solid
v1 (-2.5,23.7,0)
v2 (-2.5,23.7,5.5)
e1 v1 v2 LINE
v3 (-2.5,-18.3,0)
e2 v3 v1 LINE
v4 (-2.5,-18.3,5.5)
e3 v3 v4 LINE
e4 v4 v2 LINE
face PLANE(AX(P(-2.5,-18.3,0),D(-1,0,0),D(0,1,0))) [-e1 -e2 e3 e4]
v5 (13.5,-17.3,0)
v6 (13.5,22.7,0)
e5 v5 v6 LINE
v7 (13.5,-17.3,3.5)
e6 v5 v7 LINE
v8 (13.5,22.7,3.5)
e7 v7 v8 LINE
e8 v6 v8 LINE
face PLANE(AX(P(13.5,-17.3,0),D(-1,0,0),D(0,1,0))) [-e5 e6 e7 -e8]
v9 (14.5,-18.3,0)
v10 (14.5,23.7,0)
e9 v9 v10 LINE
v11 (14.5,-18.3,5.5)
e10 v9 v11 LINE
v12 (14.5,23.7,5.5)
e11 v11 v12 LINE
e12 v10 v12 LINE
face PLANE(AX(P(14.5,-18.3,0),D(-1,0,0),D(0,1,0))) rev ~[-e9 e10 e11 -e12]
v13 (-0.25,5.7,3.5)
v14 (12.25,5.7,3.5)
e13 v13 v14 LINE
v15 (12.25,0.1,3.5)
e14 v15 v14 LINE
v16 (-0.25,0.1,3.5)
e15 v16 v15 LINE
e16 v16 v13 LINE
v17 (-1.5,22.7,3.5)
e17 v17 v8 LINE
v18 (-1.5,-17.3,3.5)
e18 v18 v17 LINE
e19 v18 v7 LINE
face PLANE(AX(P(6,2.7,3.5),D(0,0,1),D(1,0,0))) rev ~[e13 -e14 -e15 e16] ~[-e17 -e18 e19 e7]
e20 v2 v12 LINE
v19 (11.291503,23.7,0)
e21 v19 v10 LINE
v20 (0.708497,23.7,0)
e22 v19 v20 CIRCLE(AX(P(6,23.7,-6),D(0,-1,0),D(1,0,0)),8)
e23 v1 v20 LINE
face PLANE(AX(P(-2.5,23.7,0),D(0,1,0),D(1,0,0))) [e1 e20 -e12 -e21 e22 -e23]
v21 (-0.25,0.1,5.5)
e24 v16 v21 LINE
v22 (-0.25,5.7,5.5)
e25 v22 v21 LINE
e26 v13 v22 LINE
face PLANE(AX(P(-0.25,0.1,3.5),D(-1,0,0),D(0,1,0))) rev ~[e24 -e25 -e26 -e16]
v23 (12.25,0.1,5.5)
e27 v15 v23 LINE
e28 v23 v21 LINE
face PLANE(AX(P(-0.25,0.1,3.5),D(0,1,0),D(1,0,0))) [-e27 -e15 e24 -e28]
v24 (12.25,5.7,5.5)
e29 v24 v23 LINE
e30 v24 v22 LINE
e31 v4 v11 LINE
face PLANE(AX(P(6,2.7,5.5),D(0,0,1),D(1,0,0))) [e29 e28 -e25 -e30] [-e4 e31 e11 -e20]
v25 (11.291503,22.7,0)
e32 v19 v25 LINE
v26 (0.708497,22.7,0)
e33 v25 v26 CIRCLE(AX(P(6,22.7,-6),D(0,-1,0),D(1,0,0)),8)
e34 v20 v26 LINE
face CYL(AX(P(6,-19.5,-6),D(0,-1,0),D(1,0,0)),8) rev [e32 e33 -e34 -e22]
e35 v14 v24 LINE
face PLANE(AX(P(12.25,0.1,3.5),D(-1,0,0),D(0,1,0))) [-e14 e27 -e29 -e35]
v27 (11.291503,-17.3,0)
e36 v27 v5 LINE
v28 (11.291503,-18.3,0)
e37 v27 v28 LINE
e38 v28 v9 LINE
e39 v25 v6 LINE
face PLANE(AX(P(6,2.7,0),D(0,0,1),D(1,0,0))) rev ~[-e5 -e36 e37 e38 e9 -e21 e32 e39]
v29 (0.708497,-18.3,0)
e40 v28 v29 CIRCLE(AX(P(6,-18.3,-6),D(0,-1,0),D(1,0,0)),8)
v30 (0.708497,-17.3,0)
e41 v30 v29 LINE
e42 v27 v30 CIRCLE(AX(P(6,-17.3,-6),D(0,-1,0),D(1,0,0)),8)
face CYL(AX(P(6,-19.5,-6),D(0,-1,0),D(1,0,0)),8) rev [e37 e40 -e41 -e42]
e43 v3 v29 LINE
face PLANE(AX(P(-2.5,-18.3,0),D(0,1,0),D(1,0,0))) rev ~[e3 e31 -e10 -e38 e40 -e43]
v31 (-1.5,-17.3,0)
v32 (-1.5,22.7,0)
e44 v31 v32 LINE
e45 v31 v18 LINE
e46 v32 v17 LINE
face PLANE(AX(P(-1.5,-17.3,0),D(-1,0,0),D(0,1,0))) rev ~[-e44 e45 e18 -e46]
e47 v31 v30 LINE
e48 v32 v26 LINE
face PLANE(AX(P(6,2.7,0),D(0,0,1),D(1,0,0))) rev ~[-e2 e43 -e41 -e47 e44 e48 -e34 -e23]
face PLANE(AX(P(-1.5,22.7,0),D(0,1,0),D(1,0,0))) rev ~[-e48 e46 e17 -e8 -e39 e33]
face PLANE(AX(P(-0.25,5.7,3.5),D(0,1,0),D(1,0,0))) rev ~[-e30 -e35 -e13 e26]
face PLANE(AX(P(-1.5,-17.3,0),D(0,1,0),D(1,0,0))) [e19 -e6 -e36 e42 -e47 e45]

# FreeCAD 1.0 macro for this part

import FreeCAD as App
import Part
import Sketcher

doc = App.newDocument("Part")
params = doc.addObject("Spreadsheet::Sheet", "Params")
for row, (alias, value) in enumerate([
    ("sketch1_diameter", "16 mm"),
    ("pad1_length", "45 mm"),
    ("sketch2_width", "15 mm"),
    ("sketch2_height", "40 mm"),
    ("pad2_length", "5.5 mm"),
    ("sketch3_width", "17 mm"),
    ("sketch3_height", "42 mm"),
    ("pad3_length", "5.5 mm"),
    ("sketch4_width", "12.5 mm"),
    ("sketch4_height", "5.6 mm"),
    ("pad4_length", "10 mm"),
    ("sketch5_width", "15 mm"),
    ("sketch5_height", "40 mm"),
    ("pad5_length", "2 mm"),
], start=1):
    params.set(f"A{row}", alias)
    params.set(f"B{row}", "=" + value)
    params.setAlias(f"B{row}", alias)

body = doc.addObject("PartDesign::Body", "Body")

sketch1 = doc.addObject("Sketcher::SketchObject", "Sketch")
body.addObject(sketch1)
sketch1.AttachmentSupport = (doc.XZ_Plane, [""])
sketch1.MapMode = "FlatFace"
sketch1.AttachmentOffset = App.Placement(App.Vector(0, 0, 19.5), App.Rotation())
sketch1.addGeometry(Part.Circle(App.Vector(6, -6, 0), App.Vector(0, 0, 1), 8), False)
sketch1.addConstraint([
    Sketcher.Constraint("Diameter", 0, 16.0),
    Sketcher.Constraint("DistanceX", -1, 1, 0, 3, 6.0),
    Sketcher.Constraint("DistanceY", 0, 3, -1, 1, 6.0),
])
sketch1.setExpression("Constraints[0]", "Params.sketch1_diameter")
pad1 = doc.addObject("PartDesign::Pad", "Pad")
body.addObject(pad1)
pad1.Profile = sketch1
pad1.setExpression("Length", "Params.pad1_length")
pad1.Reversed = True
body2 = doc.addObject("PartDesign::Body", "Body001")

sketch2 = doc.addObject("Sketcher::SketchObject", "Sketch001")
body2.addObject(sketch2)
sketch2.AttachmentSupport = (doc.getObject("XY_Plane001"), [""])
sketch2.MapMode = "FlatFace"
sketch2.addGeometry([
    Part.LineSegment(App.Vector(-1.5, 22.7, 0), App.Vector(-1.5, -17.3, 0)),
    Part.LineSegment(App.Vector(-1.5, -17.3, 0), App.Vector(13.5, -17.3, 0)),
    Part.LineSegment(App.Vector(13.5, -17.3, 0), App.Vector(13.5, 22.7, 0)),
    Part.LineSegment(App.Vector(13.5, 22.7, 0), App.Vector(-1.5, 22.7, 0)),
], False)
sketch2.addConstraint([
    Sketcher.Constraint("Coincident", 0, 2, 1, 1),
    Sketcher.Constraint("Coincident", 1, 2, 2, 1),
    Sketcher.Constraint("Coincident", 2, 2, 3, 1),
    Sketcher.Constraint("Coincident", 3, 2, 0, 1),
    Sketcher.Constraint("Vertical", 0),
    Sketcher.Constraint("Horizontal", 1),
    Sketcher.Constraint("Vertical", 2),
    Sketcher.Constraint("Horizontal", 3),
    Sketcher.Constraint("DistanceX", 1, 1, 1, 2, 15.0),
    Sketcher.Constraint("DistanceY", 0, 2, 0, 1, 40.0),
    Sketcher.Constraint("DistanceX", 0, 2, -1, 1, 1.5),
    Sketcher.Constraint("DistanceY", 0, 2, -1, 1, 17.3),
])
sketch2.setExpression("Constraints[8]", "Params.sketch2_width")
sketch2.setExpression("Constraints[9]", "Params.sketch2_height")
pad2 = doc.addObject("PartDesign::Pad", "Pad001")
body2.addObject(pad2)
pad2.Profile = sketch2
pad2.setExpression("Length", "Params.pad2_length")
body3 = doc.addObject("PartDesign::Body", "Body002")

sketch3 = doc.addObject("Sketcher::SketchObject", "Sketch002")
body3.addObject(sketch3)
sketch3.AttachmentSupport = (doc.getObject("XY_Plane002"), [""])
sketch3.MapMode = "FlatFace"
sketch3.addGeometry([
    Part.LineSegment(App.Vector(-2.5, 23.7, 0), App.Vector(-2.5, -18.3, 0)),
    Part.LineSegment(App.Vector(-2.5, -18.3, 0), App.Vector(14.5, -18.3, 0)),
    Part.LineSegment(App.Vector(14.5, -18.3, 0), App.Vector(14.5, 23.7, 0)),
    Part.LineSegment(App.Vector(14.5, 23.7, 0), App.Vector(-2.5, 23.7, 0)),
], False)
sketch3.addConstraint([
    Sketcher.Constraint("Coincident", 0, 2, 1, 1),
    Sketcher.Constraint("Coincident", 1, 2, 2, 1),
    Sketcher.Constraint("Coincident", 2, 2, 3, 1),
    Sketcher.Constraint("Coincident", 3, 2, 0, 1),
    Sketcher.Constraint("Vertical", 0),
    Sketcher.Constraint("Horizontal", 1),
    Sketcher.Constraint("Vertical", 2),
    Sketcher.Constraint("Horizontal", 3),
    Sketcher.Constraint("DistanceX", 1, 1, 1, 2, 17.0),
    Sketcher.Constraint("DistanceY", 0, 2, 0, 1, 42.0),
    Sketcher.Constraint("DistanceX", 0, 2, -1, 1, 2.5),
    Sketcher.Constraint("DistanceY", 0, 2, -1, 1, 18.3),
])
sketch3.setExpression("Constraints[8]", "Params.sketch3_width")
sketch3.setExpression("Constraints[9]", "Params.sketch3_height")
pad3 = doc.addObject("PartDesign::Pad", "Pad002")
body3.addObject(pad3)
pad3.Profile = sketch3
pad3.setExpression("Length", "Params.pad3_length")
doc.recompute()

boolean = doc.addObject("PartDesign::Boolean", "Boolean")
body3.addObject(boolean)
boolean.Type = "Cut"
boolean.addObjects([body2])
body4 = doc.addObject("PartDesign::Body", "Body003")

sketch4 = doc.addObject("Sketcher::SketchObject", "Sketch003")
body4.addObject(sketch4)
sketch4.AttachmentSupport = (doc.getObject("XY_Plane003"), [""])
sketch4.MapMode = "FlatFace"
sketch4.addGeometry([
    Part.LineSegment(App.Vector(-0.25, 5.7, 0), App.Vector(-0.25, 0.1, 0)),
    Part.LineSegment(App.Vector(-0.25, 0.1, 0), App.Vector(12.25, 0.1, 0)),
    Part.LineSegment(App.Vector(12.25, 0.1, 0), App.Vector(12.25, 5.7, 0)),
    Part.LineSegment(App.Vector(12.25, 5.7, 0), App.Vector(-0.25, 5.7, 0)),
], False)
sketch4.addConstraint([
    Sketcher.Constraint("Coincident", 0, 2, 1, 1),
    Sketcher.Constraint("Coincident", 1, 2, 2, 1),
    Sketcher.Constraint("Coincident", 2, 2, 3, 1),
    Sketcher.Constraint("Coincident", 3, 2, 0, 1),
    Sketcher.Constraint("Vertical", 0),
    Sketcher.Constraint("Horizontal", 1),
    Sketcher.Constraint("Vertical", 2),
    Sketcher.Constraint("Horizontal", 3),
    Sketcher.Constraint("DistanceX", 1, 1, 1, 2, 12.5),
    Sketcher.Constraint("DistanceY", 0, 2, 0, 1, 5.6),
    Sketcher.Constraint("DistanceY", -1, 1, 0, 2, 0.1),
    Sketcher.Constraint("DistanceX", 0, 2, -1, 1, 0.25),
])
sketch4.setExpression("Constraints[8]", "Params.sketch4_width")
sketch4.setExpression("Constraints[9]", "Params.sketch4_height")
pad4 = doc.addObject("PartDesign::Pad", "Pad003")
body4.addObject(pad4)
pad4.Profile = sketch4
pad4.setExpression("Length", "Params.pad4_length")
body5 = doc.addObject("PartDesign::Body", "Body004")

sketch5 = doc.addObject("Sketcher::SketchObject", "Sketch004")
body5.addObject(sketch5)
sketch5.AttachmentSupport = (doc.getObject("XY_Plane004"), [""])
sketch5.MapMode = "FlatFace"
sketch5.addGeometry([
    Part.LineSegment(App.Vector(-1.5, 22.7, 0), App.Vector(-1.5, -17.3, 0)),
    Part.LineSegment(App.Vector(-1.5, -17.3, 0), App.Vector(13.5, -17.3, 0)),
    Part.LineSegment(App.Vector(13.5, -17.3, 0), App.Vector(13.5, 22.7, 0)),
    Part.LineSegment(App.Vector(13.5, 22.7, 0), App.Vector(-1.5, 22.7, 0)),
], False)
sketch5.addConstraint([
    Sketcher.Constraint("Coincident", 0, 2, 1, 1),
    Sketcher.Constraint("Coincident", 1, 2, 2, 1),
    Sketcher.Constraint("Coincident", 2, 2, 3, 1),
    Sketcher.Constraint("Coincident", 3, 2, 0, 1),
    Sketcher.Constraint("Vertical", 0),
    Sketcher.Constraint("Horizontal", 1),
    Sketcher.Constraint("Vertical", 2),
    Sketcher.Constraint("Horizontal", 3),
    Sketcher.Constraint("DistanceX", 1, 1, 1, 2, 15.0),
    Sketcher.Constraint("DistanceY", 0, 2, 0, 1, 40.0),
    Sketcher.Constraint("DistanceX", 0, 2, -1, 1, 1.5),
    Sketcher.Constraint("DistanceY", 0, 2, -1, 1, 17.3),
])
sketch5.setExpression("Constraints[8]", "Params.sketch5_width")
sketch5.setExpression("Constraints[9]", "Params.sketch5_height")
pad5 = doc.addObject("PartDesign::Pad", "Pad004")
body5.addObject(pad5)
pad5.Profile = sketch5
pad5.setExpression("Length", "Params.pad5_length")
doc.recompute()

boolean2 = doc.addObject("PartDesign::Boolean", "Boolean001")
body5.addObject(boolean2)
boolean2.Type = "Cut"
boolean2.addObjects([body4])
body6 = doc.addObject("PartDesign::Body", "Body005")
doc.recompute()

body5.Placement = App.Placement(App.Vector(0, 0, 3.5), App.Rotation(App.Vector(0, 0, 1), 0))
boolean3 = doc.addObject("PartDesign::Boolean", "Boolean002")
body6.addObject(boolean3)
boolean3.Type = "Fuse"
boolean3.addObjects([body5])
doc.recompute()

boolean4 = doc.addObject("PartDesign::Boolean", "Boolean003")
body6.addObject(boolean4)
boolean4.Type = "Fuse"
boolean4.addObjects([body3])
doc.recompute()

boolean5 = doc.addObject("PartDesign::Boolean", "Boolean004")
body6.addObject(boolean5)
boolean5.Type = "Cut"
boolean5.addObjects([body])

doc.recompute()
